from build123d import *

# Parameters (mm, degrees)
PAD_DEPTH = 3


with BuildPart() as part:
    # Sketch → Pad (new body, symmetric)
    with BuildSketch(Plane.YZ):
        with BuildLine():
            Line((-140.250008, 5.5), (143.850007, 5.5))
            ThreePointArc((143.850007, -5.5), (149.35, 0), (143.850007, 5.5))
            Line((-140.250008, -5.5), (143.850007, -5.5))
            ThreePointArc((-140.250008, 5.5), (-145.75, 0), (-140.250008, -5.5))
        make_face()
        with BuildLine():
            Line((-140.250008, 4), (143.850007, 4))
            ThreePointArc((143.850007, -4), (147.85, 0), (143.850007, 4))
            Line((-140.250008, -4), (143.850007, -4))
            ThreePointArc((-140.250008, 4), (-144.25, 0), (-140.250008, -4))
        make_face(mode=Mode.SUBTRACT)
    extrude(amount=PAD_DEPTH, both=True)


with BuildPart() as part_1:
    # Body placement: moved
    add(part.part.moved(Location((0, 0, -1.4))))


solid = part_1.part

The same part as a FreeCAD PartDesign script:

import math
import FreeCAD as App
import Part
import Sketcher

V = App.Vector

doc = App.newDocument("Part")
body = doc.addObject("PartDesign::Body", "Body")

sketch1 = body.newObject("Sketcher::SketchObject", "Sketch")
sketch1.AttachmentSupport = (doc.getObject("YZ_Plane"), [""])
sketch1.MapMode = "FlatFace"
sketch1.addGeometry([
    Part.LineSegment(V(143.9, 5.5, 0), V(-140.3, 5.5, 0)),
    Part.ArcOfCircle(Part.Circle(V(-140.2, 0, 0), V(0, 0, 1), 5.5), math.radians(90), math.radians(270)),
    Part.LineSegment(V(-140.3, -5.5, 0), V(143.9, -5.5, 0)),
    Part.ArcOfCircle(Part.Circle(V(143.8, 0, 0), V(0, 0, 1), 5.5), math.radians(-90), math.radians(90)),
    Part.LineSegment(V(-140.3, 4, 0), V(143.9, 4, 0)),
    Part.ArcOfCircle(Part.Circle(V(143.8, 0, 0), V(0, 0, 1), 4), math.radians(-90), math.radians(90)),
    Part.LineSegment(V(143.9, -4, 0), V(-140.3, -4, 0)),
    Part.ArcOfCircle(Part.Circle(V(-140.2, 0, 0), V(0, 0, 1), 4), math.radians(90), math.radians(270)),
], False)
sketch1.addConstraint([
    Sketcher.Constraint("Tangent", 0, 2, 1, 1),
    Sketcher.Constraint("Tangent", 1, 2, 2, 1),
    Sketcher.Constraint("Tangent", 2, 2, 3, 1),
    Sketcher.Constraint("Tangent", 3, 2, 0, 1),
    Sketcher.Constraint("Tangent", 4, 2, 5, 2),
    Sketcher.Constraint("Tangent", 5, 1, 6, 1),
    Sketcher.Constraint("Coincident", 6, 2, 7, 2),
    Sketcher.Constraint("Coincident", 7, 1, 4, 1),
    Sketcher.Constraint("Horizontal", 0),
    Sketcher.Constraint("Horizontal", 2),
    Sketcher.Constraint("Horizontal", 4),
    Sketcher.Constraint("Horizontal", 6),
    Sketcher.Constraint("Coincident", 5, 3, 3, 3),
    Sketcher.Constraint("Symmetric", 6, 2, 7, 1, -1),
    Sketcher.Constraint("Vertical", 1, 2, 6, 2),
    Sketcher.Constraint("Radius", 5, 4.0),
    Sketcher.Constraint("Radius", 1, 5.5),
    Sketcher.Constraint("DistanceX", 1, 3, 3, 3, 284.1),
    Sketcher.Constraint("DistanceX", 7, 3, 3, 3, 284.1),
    Sketcher.Constraint("DistanceX", 1, 3, -1, 1, 140.25),
])
pad1 = body.newObject("PartDesign::Pad", "Pad")
pad1.Profile = sketch1
pad1.Length = 6
pad1.Midplane = True
body2 = doc.addObject("PartDesign::Body", "Body001")
doc.recompute()

body.Placement = App.Placement(V(0, 0, -1.4), App.Rotation(V(0, 0, 1), 0))
boolean = body2.newObject("PartDesign::Boolean", "Boolean")
boolean.Type = "Fuse"
boolean.addObjects([body])

doc.recompute()
